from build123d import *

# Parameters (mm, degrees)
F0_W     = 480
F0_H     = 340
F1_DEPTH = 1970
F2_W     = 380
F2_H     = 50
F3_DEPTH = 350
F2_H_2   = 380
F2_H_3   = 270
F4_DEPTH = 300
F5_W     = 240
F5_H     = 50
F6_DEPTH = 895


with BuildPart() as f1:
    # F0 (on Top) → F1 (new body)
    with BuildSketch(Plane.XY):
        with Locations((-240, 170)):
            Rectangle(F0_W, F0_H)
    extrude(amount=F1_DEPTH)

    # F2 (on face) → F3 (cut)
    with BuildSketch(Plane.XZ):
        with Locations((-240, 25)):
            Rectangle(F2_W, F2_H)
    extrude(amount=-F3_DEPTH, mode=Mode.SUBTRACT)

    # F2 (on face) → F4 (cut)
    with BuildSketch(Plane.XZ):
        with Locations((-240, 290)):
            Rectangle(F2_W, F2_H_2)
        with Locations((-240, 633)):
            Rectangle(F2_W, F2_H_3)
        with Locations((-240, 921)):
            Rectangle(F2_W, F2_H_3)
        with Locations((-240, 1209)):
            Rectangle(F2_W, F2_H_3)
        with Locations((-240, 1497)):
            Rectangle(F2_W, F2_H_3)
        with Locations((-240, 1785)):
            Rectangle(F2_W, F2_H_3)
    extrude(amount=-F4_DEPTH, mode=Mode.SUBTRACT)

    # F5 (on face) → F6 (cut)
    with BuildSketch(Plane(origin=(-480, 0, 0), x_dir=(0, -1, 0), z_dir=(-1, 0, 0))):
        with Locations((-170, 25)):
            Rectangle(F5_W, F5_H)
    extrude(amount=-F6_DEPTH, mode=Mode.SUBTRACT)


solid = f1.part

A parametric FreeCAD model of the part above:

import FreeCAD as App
import Part
import Sketcher
from FreeCAD import Vector

doc = App.newDocument("Part")
params = doc.addObject("Spreadsheet::Sheet", "Params")
for row, (alias, value) in enumerate([
    ("sketch1_width", "480 mm"),
    ("sketch1_height", "340 mm"),
    ("pad1_length", "1970 mm"),
    ("sketch2_width", "380 mm"),
    ("sketch2_height", "50 mm"),
    ("pocket1_length", "350 mm"),
    ("sketch3_width", "380 mm"),
    ("sketch3_height", "270 mm"),
    ("pocket2_length", "300 mm"),
    ("sketch4_width", "240 mm"),
    ("sketch4_height", "50 mm"),
    ("pocket3_length", "895 mm"),
], start=1):
    params.set(f"A{row}", alias)
    params.set(f"B{row}", "=" + value)
    params.setAlias(f"B{row}", alias)

body = doc.addObject("PartDesign::Body", "Body")

sketch1 = doc.addObject("Sketcher::SketchObject", "Sketch")
body.addObject(sketch1)
sketch1.AttachmentSupport = (doc.XY_Plane, [""])
sketch1.MapMode = "FlatFace"
sketch1.addGeometry([
    Part.LineSegment(Vector(-480, 340, 0), Vector(-480, 0, 0)),
    Part.LineSegment(Vector(-480, 0, 0), Vector(0, 0, 0)),
    Part.LineSegment(Vector(0, 0, 0), Vector(0, 340, 0)),
    Part.LineSegment(Vector(0, 340, 0), Vector(-480, 340, 0)),
], False)
sketch1.addConstraint([
    Sketcher.Constraint("Coincident", 0, 2, 1, 1),
    Sketcher.Constraint("Coincident", 1, 2, 2, 1),
    Sketcher.Constraint("Coincident", 2, 2, 3, 1),
    Sketcher.Constraint("Coincident", 3, 2, 0, 1),
    Sketcher.Constraint("Vertical", 0),
    Sketcher.Constraint("Horizontal", 1),
    Sketcher.Constraint("Vertical", 2),
    Sketcher.Constraint("Horizontal", 3),
    Sketcher.Constraint("Coincident", 1, 2, -1, 1),
    Sketcher.Constraint("DistanceX", 1, 1, 1, 2, 480.0),
    Sketcher.Constraint("DistanceY", 0, 2, 0, 1, 340.0),
])
sketch1.setExpression("Constraints[9]", "Params.sketch1_width")
sketch1.setExpression("Constraints[10]", "Params.sketch1_height")
pad1 = doc.addObject("PartDesign::Pad", "Pad")
body.addObject(pad1)
pad1.Profile = sketch1
pad1.setExpression("Length", "Params.pad1_length")

sketch2 = doc.addObject("Sketcher::SketchObject", "Sketch001")
body.addObject(sketch2)
sketch2.AttachmentSupport = (doc.XZ_Plane, [""])
sketch2.MapMode = "FlatFace"
sketch2.addGeometry([
    Part.LineSegment(Vector(-430, 50, 0), Vector(-430, 0, 0)),
    Part.LineSegment(Vector(-430, 0, 0), Vector(-50, 0, 0)),
    Part.LineSegment(Vector(-50, 0, 0), Vector(-50, 50, 0)),
    Part.LineSegment(Vector(-50, 50, 0), Vector(-430, 50, 0)),
], False)
sketch2.addConstraint([
    Sketcher.Constraint("Coincident", 0, 2, 1, 1),
    Sketcher.Constraint("Coincident", 1, 2, 2, 1),
    Sketcher.Constraint("Coincident", 2, 2, 3, 1),
    Sketcher.Constraint("Coincident", 3, 2, 0, 1),
    Sketcher.Constraint("Vertical", 0),
    Sketcher.Constraint("Horizontal", 1),
    Sketcher.Constraint("Vertical", 2),
    Sketcher.Constraint("Horizontal", 3),
    Sketcher.Constraint("PointOnObject", 0, 2, -1),
    Sketcher.Constraint("DistanceX", 1, 1, 1, 2, 380.0),
    Sketcher.Constraint("DistanceY", 0, 2, 0, 1, 50.0),
    Sketcher.Constraint("DistanceX", 0, 2, -1, 1, 430.0),
])
sketch2.setExpression("Constraints[9]", "Params.sketch2_width")
sketch2.setExpression("Constraints[10]", "Params.sketch2_height")
pocket1 = doc.addObject("PartDesign::Pocket", "Pocket")
body.addObject(pocket1)
pocket1.Profile = sketch2
pocket1.setExpression("Length", "Params.pocket1_length")

sketch3 = doc.addObject("Sketcher::SketchObject", "Sketch002")
body.addObject(sketch3)
sketch3.AttachmentSupport = (doc.XZ_Plane, [""])
sketch3.MapMode = "FlatFace"
sketch3.addGeometry([
    Part.LineSegment(Vector(-430, 480, 0), Vector(-430, 100, 0)),
    Part.LineSegment(Vector(-430, 100, 0), Vector(-50, 100, 0)),
    Part.LineSegment(Vector(-50, 100, 0), Vector(-50, 480, 0)),
    Part.LineSegment(Vector(-50, 480, 0), Vector(-430, 480, 0)),
    Part.LineSegment(Vector(-430, 768, 0), Vector(-430, 498, 0)),
    Part.LineSegment(Vector(-430, 498, 0), Vector(-50, 498, 0)),
    Part.LineSegment(Vector(-50, 498, 0), Vector(-50, 768, 0)),
    Part.LineSegment(Vector(-50, 768, 0), Vector(-430, 768, 0)),
    Part.LineSegment(Vector(-430, 1056, 0), Vector(-430, 786, 0)),
    Part.LineSegment(Vector(-430, 786, 0), Vector(-50, 786, 0)),
    Part.LineSegment(Vector(-50, 786, 0), Vector(-50, 1056, 0)),
    Part.LineSegment(Vector(-50, 1056, 0), Vector(-430, 1056, 0)),
    Part.LineSegment(Vector(-430, 1344, 0), Vector(-430, 1074, 0)),
    Part.LineSegment(Vector(-430, 1074, 0), Vector(-50, 1074, 0)),
    Part.LineSegment(Vector(-50, 1074, 0), Vector(-50, 1344, 0)),
    Part.LineSegment(Vector(-50, 1344, 0), Vector(-430, 1344, 0)),
    Part.LineSegment(Vector(-430, 1632, 0), Vector(-430, 1362, 0)),
    Part.LineSegment(Vector(-430, 1362, 0), Vector(-50, 1362, 0)),
    Part.LineSegment(Vector(-50, 1362, 0), Vector(-50, 1632, 0)),
    Part.LineSegment(Vector(-50, 1632, 0), Vector(-430, 1632, 0)),
    Part.LineSegment(Vector(-430, 1920, 0), Vector(-430, 1650, 0)),
    Part.LineSegment(Vector(-430, 1650, 0), Vector(-50, 1650, 0)),
    Part.LineSegment(Vector(-50, 1650, 0), Vector(-50, 1920, 0)),
    Part.LineSegment(Vector(-50, 1920, 0), Vector(-430, 1920, 0)),
], False)
sketch3.addConstraint([
    Sketcher.Constraint("Coincident", 0, 2, 1, 1),
    Sketcher.Constraint("Coincident", 1, 2, 2, 1),
    Sketcher.Constraint("Coincident", 2, 2, 3, 1),
    Sketcher.Constraint("Coincident", 3, 2, 0, 1),
    Sketcher.Constraint("Coincident", 4, 2, 5, 1),
    Sketcher.Constraint("Coincident", 5, 2, 6, 1),
    Sketcher.Constraint("Coincident", 6, 2, 7, 1),
    Sketcher.Constraint("Coincident", 7, 2, 4, 1),
    Sketcher.Constraint("Coincident", 8, 2, 9, 1),
    Sketcher.Constraint("Coincident", 9, 2, 10, 1),
    Sketcher.Constraint("Coincident", 10, 2, 11, 1),
    Sketcher.Constraint("Coincident", 11, 2, 8, 1),
    Sketcher.Constraint("Coincident", 12, 2, 13, 1),
    Sketcher.Constraint("Coincident", 13, 2, 14, 1),
    Sketcher.Constraint("Coincident", 14, 2, 15, 1),
    Sketcher.Constraint("Coincident", 15, 2, 12, 1),
    Sketcher.Constraint("Coincident", 16, 2, 17, 1),
    Sketcher.Constraint("Coincident", 17, 2, 18, 1),
    Sketcher.Constraint("Coincident", 18, 2, 19, 1),
    Sketcher.Constraint("Coincident", 19, 2, 16, 1),
    Sketcher.Constraint("Coincident", 20, 2, 21, 1),
    Sketcher.Constraint("Coincident", 21, 2, 22, 1),
    Sketcher.Constraint("Coincident", 22, 2, 23, 1),
    Sketcher.Constraint("Coincident", 23, 2, 20, 1),
    Sketcher.Constraint("Vertical", 0),
    Sketcher.Constraint("Horizontal", 1),
    Sketcher.Constraint("Vertical", 2),
    Sketcher.Constraint("Horizontal", 3),
    Sketcher.Constraint("Vertical", 4),
    Sketcher.Constraint("Horizontal", 5),
    Sketcher.Constraint("Vertical", 6),
    Sketcher.Constraint("Horizontal", 7),
    Sketcher.Constraint("Vertical", 8),
    Sketcher.Constraint("Horizontal", 9),
    Sketcher.Constraint("Vertical", 10),
    Sketcher.Constraint("Horizontal", 11),
    Sketcher.Constraint("Vertical", 12),
    Sketcher.Constraint("Horizontal", 13),
    Sketcher.Constraint("Vertical", 14),
    Sketcher.Constraint("Horizontal", 15),
    Sketcher.Constraint("Vertical", 16),
    Sketcher.Constraint("Horizontal", 17),
    Sketcher.Constraint("Vertical", 18),
    Sketcher.Constraint("Horizontal", 19),
    Sketcher.Constraint("Vertical", 20),
    Sketcher.Constraint("Horizontal", 21),
    Sketcher.Constraint("Vertical", 22),
    Sketcher.Constraint("Horizontal", 23),
    Sketcher.Constraint("Vertical", 3, 2, 4, 2),
    Sketcher.Constraint("Vertical", 2, 2, 5, 2),
    Sketcher.Constraint("Vertical", 7, 2, 8, 2),
    Sketcher.Constraint("Vertical", 6, 2, 9, 2),
    Sketcher.Constraint("Vertical", 11, 2, 12, 2),
    Sketcher.Constraint("Vertical", 10, 2, 13, 2),
    Sketcher.Constraint("Vertical", 15, 2, 16, 2),
    Sketcher.Constraint("Vertical", 14, 2, 17, 2),
    Sketcher.Constraint("Vertical", 19, 2, 20, 2),
    Sketcher.Constraint("Vertical", 18, 2, 21, 2),
    Sketcher.Constraint("Equal", 23, 0),
    Sketcher.Constraint("Equal", 6, 8),
    Sketcher.Constraint("Equal", 10, 12),
    Sketcher.Constraint("Equal", 14, 16),
    Sketcher.Constraint("Equal", 18, 20),
    Sketcher.Constraint("DistanceX", 1, 1, 1, 2, 380.0),
    Sketcher.Constraint("DistanceY", 4, 2, 4, 1, 270.0),
    Sketcher.Constraint("DistanceX", 0, 2, -1, 1, 430.0),
    Sketcher.Constraint("DistanceY", -1, 1, 0, 2, 100.0),
    Sketcher.Constraint("DistanceY", -1, 1, 4, 2, 498.0),
    Sketcher.Constraint("DistanceY", -1, 1, 8, 2, 786.0),
    Sketcher.Constraint("DistanceY", -1, 1, 12, 2, 1074.0),
    Sketcher.Constraint("DistanceY", -1, 1, 16, 2, 1362.0),
    Sketcher.Constraint("DistanceY", -1, 1, 20, 2, 1650.0),
])
sketch3.setExpression("Constraints[63]", "Params.sketch3_width")
sketch3.setExpression("Constraints[64]", "Params.sketch3_height")
pocket2 = doc.addObject("PartDesign::Pocket", "Pocket001")
body.addObject(pocket2)
pocket2.Profile = sketch3
pocket2.setExpression("Length", "Params.pocket2_length")

sketch4 = doc.addObject("Sketcher::SketchObject", "Sketch003")
body.addObject(sketch4)
sketch4.AttachmentSupport = (doc.YZ_Plane, [""])
sketch4.MapMode = "FlatFace"
sketch4.AttachmentOffset = App.Placement(Vector(0, 0, -480), App.Rotation())
sketch4.addGeometry([
    Part.LineSegment(Vector(290, 50, 0), Vector(290, 0, 0)),
    Part.LineSegment(Vector(290, 0, 0), Vector(50, 0, 0)),
    Part.LineSegment(Vector(50, 0, 0), Vector(50, 50, 0)),
    Part.LineSegment(Vector(50, 50, 0), Vector(290, 50, 0)),
], False)
sketch4.addConstraint([
    Sketcher.Constraint("Coincident", 0, 2, 1, 1),
    Sketcher.Constraint("Coincident", 1, 2, 2, 1),
    Sketcher.Constraint("Coincident", 2, 2, 3, 1),
    Sketcher.Constraint("Coincident", 3, 2, 0, 1),
    Sketcher.Constraint("Vertical", 0),
    Sketcher.Constraint("Horizontal", 1),
    Sketcher.Constraint("Vertical", 2),
    Sketcher.Constraint("Horizontal", 3),
    Sketcher.Constraint("PointOnObject", 0, 2, -1),
    Sketcher.Constraint("DistanceX", 1, 2, 1, 1, 240.0),
    Sketcher.Constraint("DistanceY", 0, 2, 0, 1, 50.0),
    Sketcher.Constraint("DistanceX", -1, 1, 0, 2, 290.0),
])
sketch4.setExpression("Constraints[9]", "Params.sketch4_width")
sketch4.setExpression("Constraints[10]", "Params.sketch4_height")
pocket3 = doc.addObject("PartDesign::Pocket", "Pocket002")
body.addObject(pocket3)
pocket3.Profile = sketch4
pocket3.setExpression("Length", "Params.pocket3_length")
pocket3.Reversed = True

doc.recompute()
